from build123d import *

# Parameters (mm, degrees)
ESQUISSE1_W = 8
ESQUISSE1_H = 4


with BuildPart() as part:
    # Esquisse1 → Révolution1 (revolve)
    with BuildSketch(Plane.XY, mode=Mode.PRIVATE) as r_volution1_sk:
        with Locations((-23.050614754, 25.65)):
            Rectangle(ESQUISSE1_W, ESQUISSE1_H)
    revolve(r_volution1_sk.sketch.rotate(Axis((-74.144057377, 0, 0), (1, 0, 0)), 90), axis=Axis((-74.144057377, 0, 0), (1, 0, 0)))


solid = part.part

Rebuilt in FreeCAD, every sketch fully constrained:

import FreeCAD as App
import Part
import Sketcher

V = App.Vector
Q = App.Units.Quantity

doc = App.newDocument("Part")
body = doc.addObject("PartDesign::Body", "Body")

# Sketch on XY plane
sketch1 = body.newObject("Sketcher::SketchObject", "Sketch")
sketch1.AttachmentSupport = (doc.getObject("XY_Plane"), [""])
sketch1.MapMode = "FlatFace"
sketch1.addGeometry([
    Part.LineSegment(V(-27.050615, 27.65, 0), V(-27.050615, 23.65, 0)),
    Part.LineSegment(V(-27.050615, 23.65, 0), V(-19.050615, 23.65, 0)),
    Part.LineSegment(V(-19.050615, 23.65, 0), V(-19.050615, 27.65, 0)),
    Part.LineSegment(V(-19.050615, 27.65, 0), V(-27.050615, 27.65, 0)),
], False)
sketch1.addConstraint([
    Sketcher.Constraint("Coincident", 0, 2, 1, 1),
    Sketcher.Constraint("Coincident", 1, 2, 2, 1),
    Sketcher.Constraint("Coincident", 2, 2, 3, 1),
    Sketcher.Constraint("Coincident", 3, 2, 0, 1),
    Sketcher.Constraint("Vertical", 0),
    Sketcher.Constraint("Horizontal", 1),
    Sketcher.Constraint("Vertical", 2),
    Sketcher.Constraint("Horizontal", 3),
    Sketcher.Constraint("DistanceX", 1, 1, 1, 2, Q("8 mm")),
    Sketcher.Constraint("DistanceY", 0, 2, 0, 1, Q("4 mm")),
    Sketcher.Constraint("DistanceY", -1, 1, 0, 2, Q("23.65 mm")),
    Sketcher.Constraint("DistanceX", 0, 2, -1, 1, Q("27.050615 mm")),
])
revolution = body.newObject("PartDesign::Revolution", "Revolution")
revolution.Profile = sketch1
revolution.ReferenceAxis = (sketch1, ["H_Axis"])
revolution.Angle = 360

doc.recompute()
